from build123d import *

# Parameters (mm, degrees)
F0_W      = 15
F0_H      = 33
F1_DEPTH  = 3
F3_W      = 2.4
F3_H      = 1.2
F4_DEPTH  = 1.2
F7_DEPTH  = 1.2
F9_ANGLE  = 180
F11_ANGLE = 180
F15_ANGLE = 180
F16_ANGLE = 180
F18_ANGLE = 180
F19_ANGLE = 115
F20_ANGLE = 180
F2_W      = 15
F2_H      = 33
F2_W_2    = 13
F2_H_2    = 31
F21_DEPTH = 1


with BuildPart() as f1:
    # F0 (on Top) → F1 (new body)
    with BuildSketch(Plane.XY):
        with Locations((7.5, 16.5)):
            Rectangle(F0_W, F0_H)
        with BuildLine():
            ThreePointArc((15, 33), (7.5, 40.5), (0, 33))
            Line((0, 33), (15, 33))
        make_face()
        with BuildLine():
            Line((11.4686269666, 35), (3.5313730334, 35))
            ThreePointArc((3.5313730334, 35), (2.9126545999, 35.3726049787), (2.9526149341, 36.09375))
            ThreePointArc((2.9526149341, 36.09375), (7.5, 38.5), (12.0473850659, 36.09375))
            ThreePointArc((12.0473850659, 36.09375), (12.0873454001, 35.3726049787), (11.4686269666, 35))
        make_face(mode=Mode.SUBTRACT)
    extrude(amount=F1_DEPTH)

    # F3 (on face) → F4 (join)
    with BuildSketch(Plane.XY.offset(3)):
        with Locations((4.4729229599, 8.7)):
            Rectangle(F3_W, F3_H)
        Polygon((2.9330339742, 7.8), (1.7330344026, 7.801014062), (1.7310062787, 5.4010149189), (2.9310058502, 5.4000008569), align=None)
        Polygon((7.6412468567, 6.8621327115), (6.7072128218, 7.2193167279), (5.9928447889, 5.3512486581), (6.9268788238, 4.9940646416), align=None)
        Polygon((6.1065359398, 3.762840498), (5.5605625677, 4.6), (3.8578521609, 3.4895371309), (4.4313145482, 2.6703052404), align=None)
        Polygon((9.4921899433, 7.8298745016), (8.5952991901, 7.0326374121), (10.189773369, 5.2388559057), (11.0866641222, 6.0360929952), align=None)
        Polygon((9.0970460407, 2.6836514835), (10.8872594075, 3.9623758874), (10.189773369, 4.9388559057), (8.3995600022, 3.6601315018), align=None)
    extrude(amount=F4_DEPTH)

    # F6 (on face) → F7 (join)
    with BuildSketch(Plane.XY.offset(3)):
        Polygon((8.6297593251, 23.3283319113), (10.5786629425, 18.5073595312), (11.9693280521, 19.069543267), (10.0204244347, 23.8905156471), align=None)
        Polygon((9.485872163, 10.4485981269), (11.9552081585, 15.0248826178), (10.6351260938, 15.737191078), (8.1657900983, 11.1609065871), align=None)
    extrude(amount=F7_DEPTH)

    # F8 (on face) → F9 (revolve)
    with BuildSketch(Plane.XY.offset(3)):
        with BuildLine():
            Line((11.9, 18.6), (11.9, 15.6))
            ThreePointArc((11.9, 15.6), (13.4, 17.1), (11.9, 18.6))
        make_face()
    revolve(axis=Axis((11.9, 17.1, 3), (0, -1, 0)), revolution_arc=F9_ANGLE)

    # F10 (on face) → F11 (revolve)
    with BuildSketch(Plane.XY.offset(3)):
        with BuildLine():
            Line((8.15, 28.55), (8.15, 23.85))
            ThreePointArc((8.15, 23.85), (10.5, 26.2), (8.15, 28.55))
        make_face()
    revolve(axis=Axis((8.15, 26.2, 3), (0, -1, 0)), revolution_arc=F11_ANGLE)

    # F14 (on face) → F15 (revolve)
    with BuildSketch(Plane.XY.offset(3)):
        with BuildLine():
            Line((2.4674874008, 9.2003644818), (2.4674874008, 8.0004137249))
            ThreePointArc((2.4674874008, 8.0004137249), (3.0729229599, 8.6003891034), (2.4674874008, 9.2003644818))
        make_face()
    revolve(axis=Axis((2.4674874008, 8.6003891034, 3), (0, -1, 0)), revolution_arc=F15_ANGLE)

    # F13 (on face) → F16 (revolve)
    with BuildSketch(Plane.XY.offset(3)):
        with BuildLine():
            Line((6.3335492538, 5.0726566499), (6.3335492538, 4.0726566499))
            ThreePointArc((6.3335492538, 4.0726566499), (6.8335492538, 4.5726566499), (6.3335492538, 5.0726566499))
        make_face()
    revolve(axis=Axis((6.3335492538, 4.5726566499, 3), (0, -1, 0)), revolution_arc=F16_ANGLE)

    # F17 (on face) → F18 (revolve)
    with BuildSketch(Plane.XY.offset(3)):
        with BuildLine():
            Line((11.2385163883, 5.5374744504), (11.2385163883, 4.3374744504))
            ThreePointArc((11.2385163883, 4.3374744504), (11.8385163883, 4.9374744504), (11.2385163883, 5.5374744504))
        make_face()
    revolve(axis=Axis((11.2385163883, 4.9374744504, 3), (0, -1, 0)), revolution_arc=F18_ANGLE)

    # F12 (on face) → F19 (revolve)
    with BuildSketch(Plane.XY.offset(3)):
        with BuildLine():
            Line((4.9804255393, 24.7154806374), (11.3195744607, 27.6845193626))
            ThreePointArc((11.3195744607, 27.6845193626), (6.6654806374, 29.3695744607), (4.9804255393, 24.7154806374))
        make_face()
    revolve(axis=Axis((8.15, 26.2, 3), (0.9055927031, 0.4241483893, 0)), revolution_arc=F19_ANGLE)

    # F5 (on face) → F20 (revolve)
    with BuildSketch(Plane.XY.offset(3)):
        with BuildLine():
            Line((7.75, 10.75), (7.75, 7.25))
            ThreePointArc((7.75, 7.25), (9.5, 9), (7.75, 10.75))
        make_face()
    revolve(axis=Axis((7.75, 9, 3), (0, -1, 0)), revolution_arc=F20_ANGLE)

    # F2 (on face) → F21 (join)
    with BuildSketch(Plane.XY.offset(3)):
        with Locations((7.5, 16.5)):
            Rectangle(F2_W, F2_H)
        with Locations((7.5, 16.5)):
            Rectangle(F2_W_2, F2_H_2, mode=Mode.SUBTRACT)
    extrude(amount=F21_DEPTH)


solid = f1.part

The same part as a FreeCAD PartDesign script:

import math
import FreeCAD as App
import Part
import Sketcher
Q = App.Units.Quantity

doc = App.newDocument("Part")
body = doc.addObject("PartDesign::Body", "Body")

# Sketch on XY plane
sketch1 = body.newObject("Sketcher::SketchObject", "Sketch")
sketch1.AttachmentSupport = (doc.getObject("XY_Plane"), [""])
sketch1.MapMode = "FlatFace"
sketch1.addGeometry([
    Part.LineSegment(App.Vector(0, 33, 0), App.Vector(0, 0, 0)),  # 0
    Part.LineSegment(App.Vector(0, 0, 0), App.Vector(15, 0, 0)),  # 1
    Part.LineSegment(App.Vector(15, 0, 0), App.Vector(15, 33, 0)),  # 2
    Part.ArcOfCircle(Part.Circle(App.Vector(7.5, 33, 0), App.Vector(0, 0, 1), 7.5), math.radians(0), math.radians(180)),  # 3
    Part.ArcOfCircle(Part.Circle(App.Vector(11.5, 35.7, 0), App.Vector(0, 0, 1), 0.7), math.radians(-90), math.radians(34)),  # 4
    Part.LineSegment(App.Vector(11.5, 35, 0), App.Vector(3.5, 35, 0)),  # 5
    Part.ArcOfCircle(Part.Circle(App.Vector(3.5, 35.7, 0), App.Vector(0, 0, 1), 0.7), math.radians(146), math.radians(270)),  # 6
    Part.ArcOfCircle(Part.Circle(App.Vector(7.5, 33, 0), App.Vector(0, 0, 1), 5.5), math.radians(34), math.radians(146)),  # 7
], False)
sketch1.addConstraint([
    Sketcher.Constraint("Coincident", 0, 2, 1, 1),
    Sketcher.Constraint("Coincident", 1, 2, 2, 1),
    Sketcher.Constraint("Tangent", 2, 2, 3, 1),
    Sketcher.Constraint("Tangent", 3, 2, 0, 1),
    Sketcher.Constraint("Tangent", 4, 1, 5, 1),
    Sketcher.Constraint("Tangent", 5, 2, 6, 2),
    Sketcher.Constraint("Tangent", 6, 1, 7, 2),
    Sketcher.Constraint("Tangent", 7, 1, 4, 2),
    Sketcher.Constraint("Vertical", 0),
    Sketcher.Constraint("Horizontal", 1),
    Sketcher.Constraint("Vertical", 2),
    Sketcher.Constraint("Horizontal", 5),
    Sketcher.Constraint("Coincident", 0, 2, -1, 1),
    Sketcher.Constraint("Coincident", 7, 3, 3, 3),
    Sketcher.Constraint("Equal", 4, 6),
    Sketcher.Constraint("Radius", 3, Q("7.5 mm")),
    Sketcher.Constraint("Radius", 4, Q("0.7 mm")),
    Sketcher.Constraint("Radius", 7, Q("5.5 mm")),
    Sketcher.Constraint("DistanceY", 0, 2, 0, 1, Q("33 mm")),
    Sketcher.Constraint("DistanceY", -1, 1, 4, 1, Q("35 mm")),
])
pad1 = body.newObject("PartDesign::Pad", "Pad")
pad1.Profile = sketch1
pad1.Length = 3

# Sketch on XY plane
sketch2 = body.newObject("Sketcher::SketchObject", "Sketch001")
sketch2.AttachmentSupport = (doc.getObject("XY_Plane"), [""])
sketch2.MapMode = "FlatFace"
sketch2.AttachmentOffset = App.Placement(App.Vector(0, 0, 3), App.Rotation())
sketch2.addGeometry([
    Part.LineSegment(App.Vector(3.272923, 9.3, 0), App.Vector(3.272923, 8.1, 0)),  # 0
    Part.LineSegment(App.Vector(3.272923, 8.1, 0), App.Vector(5.672923, 8.1, 0)),  # 1
    Part.LineSegment(App.Vector(5.672923, 8.1, 0), App.Vector(5.672923, 9.3, 0)),  # 2
    Part.LineSegment(App.Vector(5.672923, 9.3, 0), App.Vector(3.272923, 9.3, 0)),  # 3
    Part.LineSegment(App.Vector(2.933034, 7.8, 0), App.Vector(1.733034, 7.801014, 0)),  # 4
    Part.LineSegment(App.Vector(1.733034, 7.801014, 0), App.Vector(1.731006, 5.401015, 0)),  # 5
    Part.LineSegment(App.Vector(1.731006, 5.401015, 0), App.Vector(2.931006, 5.400001, 0)),  # 6
    Part.LineSegment(App.Vector(2.931006, 5.400001, 0), App.Vector(2.933034, 7.8, 0)),  # 7
    Part.LineSegment(App.Vector(7.641247, 6.862133, 0), App.Vector(6.707213, 7.219317, 0)),  # 8
    Part.LineSegment(App.Vector(6.707213, 7.219317, 0), App.Vector(5.992845, 5.351249, 0)),  # 9
    Part.LineSegment(App.Vector(5.992845, 5.351249, 0), App.Vector(6.926879, 4.994065, 0)),  # 10
    Part.LineSegment(App.Vector(6.926879, 4.994065, 0), App.Vector(7.641247, 6.862133, 0)),  # 11
    Part.LineSegment(App.Vector(6.106536, 3.76284, 0), App.Vector(5.560563, 4.6, 0)),  # 12
    Part.LineSegment(App.Vector(5.560563, 4.6, 0), App.Vector(3.857852, 3.489537, 0)),  # 13
    Part.LineSegment(App.Vector(3.857852, 3.489537, 0), App.Vector(4.431315, 2.670305, 0)),  # 14
    Part.LineSegment(App.Vector(4.431315, 2.670305, 0), App.Vector(6.106536, 3.76284, 0)),  # 15
    Part.LineSegment(App.Vector(9.49219, 7.829875, 0), App.Vector(8.595299, 7.032637, 0)),  # 16
    Part.LineSegment(App.Vector(8.595299, 7.032637, 0), App.Vector(10.189773, 5.238856, 0)),  # 17
    Part.LineSegment(App.Vector(10.189773, 5.238856, 0), App.Vector(11.086664, 6.036093, 0)),  # 18
    Part.LineSegment(App.Vector(11.086664, 6.036093, 0), App.Vector(9.49219, 7.829875, 0)),  # 19
    Part.LineSegment(App.Vector(9.097046, 2.683651, 0), App.Vector(10.887259, 3.962376, 0)),  # 20
    Part.LineSegment(App.Vector(10.887259, 3.962376, 0), App.Vector(10.189773, 4.938856, 0)),  # 21
    Part.LineSegment(App.Vector(10.189773, 4.938856, 0), App.Vector(8.39956, 3.660132, 0)),  # 22
    Part.LineSegment(App.Vector(8.39956, 3.660132, 0), App.Vector(9.097046, 2.683651, 0)),  # 23
], False)
sketch2.addConstraint([
    Sketcher.Constraint("Coincident", 0, 2, 1, 1),
    Sketcher.Constraint("Coincident", 1, 2, 2, 1),
    Sketcher.Constraint("Coincident", 2, 2, 3, 1),
    Sketcher.Constraint("Coincident", 3, 2, 0, 1),
    Sketcher.Constraint("Coincident", 4, 2, 5, 1),
    Sketcher.Constraint("Coincident", 5, 2, 6, 1),
    Sketcher.Constraint("Coincident", 6, 2, 7, 1),
    Sketcher.Constraint("Coincident", 7, 2, 4, 1),
    Sketcher.Constraint("Coincident", 8, 2, 9, 1),
    Sketcher.Constraint("Coincident", 9, 2, 10, 1),
    Sketcher.Constraint("Coincident", 10, 2, 11, 1),
    Sketcher.Constraint("Coincident", 11, 2, 8, 1),
    Sketcher.Constraint("Coincident", 12, 2, 13, 1),
    Sketcher.Constraint("Coincident", 13, 2, 14, 1),
    Sketcher.Constraint("Coincident", 14, 2, 15, 1),
    Sketcher.Constraint("Coincident", 15, 2, 12, 1),
    Sketcher.Constraint("Coincident", 16, 2, 17, 1),
    Sketcher.Constraint("Coincident", 17, 2, 18, 1),
    Sketcher.Constraint("Coincident", 18, 2, 19, 1),
    Sketcher.Constraint("Coincident", 19, 2, 16, 1),
    Sketcher.Constraint("Coincident", 20, 2, 21, 1),
    Sketcher.Constraint("Coincident", 21, 2, 22, 1),
    Sketcher.Constraint("Coincident", 22, 2, 23, 1),
    Sketcher.Constraint("Coincident", 23, 2, 20, 1),
    Sketcher.Constraint("Vertical", 0),
    Sketcher.Constraint("Horizontal", 1),
    Sketcher.Constraint("Vertical", 2),
    Sketcher.Constraint("Horizontal", 3),
    Sketcher.Constraint("Perpendicular", 4, 5),
    Sketcher.Constraint("Perpendicular", 5, 6),
    Sketcher.Constraint("Perpendicular", 6, 7),
    Sketcher.Constraint("Perpendicular", 8, 9),
    Sketcher.Constraint("Perpendicular", 9, 10),
    Sketcher.Constraint("Perpendicular", 10, 11),
    Sketcher.Constraint("Perpendicular", 12, 13),
    Sketcher.Constraint("Parallel", 13, 15),
    Sketcher.Constraint("Perpendicular", 16, 17),
    Sketcher.Constraint("Perpendicular", 17, 18),
    Sketcher.Constraint("Perpendicular", 18, 19),
    Sketcher.Constraint("Perpendicular", 20, 21),
    Sketcher.Constraint("Perpendicular", 21, 22),
    Sketcher.Constraint("Perpendicular", 22, 23),
    Sketcher.Constraint("Vertical", 17, 2, 21, 2),
    Sketcher.Constraint("Equal", 10, 14),
    Sketcher.Constraint("Equal", 11, 15),
    Sketcher.Constraint("Equal", 6, 16),
    Sketcher.Constraint("Equal", 7, 17),
    Sketcher.Constraint("Equal", 18, 21),
    Sketcher.Constraint("Distance", 8, Q("1 mm")),
    Sketcher.Constraint("Distance", 9, Q("2 mm")),
    Sketcher.Constraint("DistanceX", 1, 1, 1, 2, Q("2.4 mm")),
    Sketcher.Constraint("DistanceY", 0, 2, 0, 1, Q("1.2 mm")),
    Sketcher.Constraint("Distance", 4, Q("1.2 mm")),
    Sketcher.Constraint("Distance", 5, Q("2.4 mm")),
    Sketcher.Constraint("Distance", 20, Q("2.2 mm")),
    Sketcher.Constraint("DistanceY", -1, 1, 0, 2, Q("8.1 mm")),
    Sketcher.Constraint("DistanceY", -1, 1, 6, 2, Q("5.400001 mm")),
    Sketcher.Constraint("DistanceY", -1, 1, 12, 2, Q("4.6 mm")),
    Sketcher.Constraint("DistanceY", 21, 2, 17, 2, Q("0.3 mm")),
    Sketcher.Constraint("DistanceX", -1, 1, 16, 2, Q("8.595299 mm")),
    Sketcher.Constraint("DistanceY", 20, 2, 19, 2, Q("3.867499 mm")),
    Sketcher.Constraint("DistanceX", 22, 2, 20, 2, Q("2.487699 mm")),
    Sketcher.Constraint("Distance", 12, Q("0.999461 mm")),
    Sketcher.Constraint("DistanceY", -1, 1, 9, 2, Q("5.351249 mm")),
    Sketcher.Constraint("DistanceX", -1, 1, 10, 2, Q("6.926879 mm")),
    Sketcher.Constraint("DistanceY", -1, 1, 15, 2, Q("3.76284 mm")),
    Sketcher.Constraint("DistanceY", -1, 1, 22, 2, Q("3.660132 mm")),
    Sketcher.Constraint("DistanceX", 4, 2, 0, 2, Q("1.539889 mm")),
    Sketcher.Constraint("DistanceX", 5, 2, 4, 2, Q("0.002028 mm")),
    Sketcher.Constraint("DistanceX", 1, 2, 8, 2, Q("1.03429 mm")),
    Sketcher.Constraint("DistanceX", 9, 2, 8, 2, Q("0.714368 mm")),
    Sketcher.Constraint("DistanceX", 12, 2, 8, 2, Q("1.14665 mm")),
])
pad2 = body.newObject("PartDesign::Pad", "Pad001")
pad2.Profile = sketch2
pad2.Length = 1.2

# Sketch on XY plane
sketch3 = body.newObject("Sketcher::SketchObject", "Sketch002")
sketch3.AttachmentSupport = (doc.getObject("XY_Plane"), [""])
sketch3.MapMode = "FlatFace"
sketch3.AttachmentOffset = App.Placement(App.Vector(0, 0, 3), App.Rotation())
sketch3.addGeometry([
    Part.LineSegment(App.Vector(8.6, 23.3, 0), App.Vector(10.6, 18.5, 0)),  # 0
    Part.LineSegment(App.Vector(10.6, 18.5, 0), App.Vector(12, 19.1, 0)),  # 1
    Part.LineSegment(App.Vector(12, 19.1, 0), App.Vector(10, 23.9, 0)),  # 2
    Part.LineSegment(App.Vector(10, 23.9, 0), App.Vector(8.6, 23.3, 0)),  # 3
    Part.LineSegment(App.Vector(9.5, 10.4, 0), App.Vector(12, 15, 0)),  # 4
    Part.LineSegment(App.Vector(12, 15, 0), App.Vector(10.6, 15.7, 0)),  # 5
    Part.LineSegment(App.Vector(10.6, 15.7, 0), App.Vector(8.2, 11.2, 0)),  # 6
    Part.LineSegment(App.Vector(8.2, 11.2, 0), App.Vector(9.5, 10.4, 0)),  # 7
], False)
sketch3.addConstraint([
    Sketcher.Constraint("Coincident", 0, 2, 1, 1),
    Sketcher.Constraint("Coincident", 1, 2, 2, 1),
    Sketcher.Constraint("Coincident", 2, 2, 3, 1),
    Sketcher.Constraint("Coincident", 3, 2, 0, 1),
    Sketcher.Constraint("Coincident", 4, 2, 5, 1),
    Sketcher.Constraint("Coincident", 5, 2, 6, 1),
    Sketcher.Constraint("Coincident", 6, 2, 7, 1),
    Sketcher.Constraint("Coincident", 7, 2, 4, 1),
    Sketcher.Constraint("Perpendicular", 0, 1),
    Sketcher.Constraint("Perpendicular", 1, 2),
    Sketcher.Constraint("Perpendicular", 2, 3),
    Sketcher.Constraint("Perpendicular", 4, 5),
    Sketcher.Constraint("Perpendicular", 5, 6),
    Sketcher.Constraint("Perpendicular", 6, 7),
    Sketcher.Constraint("Equal", 2, 4),
    Sketcher.Constraint("Equal", 3, 5),
    Sketcher.Constraint("Distance", 0, Q("5.2 mm")),
    Sketcher.Constraint("Distance", 1, Q("1.5 mm")),
    Sketcher.Constraint("DistanceY", -1, 1, 7, 2, Q("10.448598 mm")),
    Sketcher.Constraint("DistanceX", 5, 2, 1, 2, Q("1.334202 mm")),
    Sketcher.Constraint("DistanceX", 2, 2, 5, 2, Q("0.614702 mm")),
    Sketcher.Constraint("DistanceY", -1, 1, 0, 2, Q("18.50736 mm")),
    Sketcher.Constraint("DistanceX", -1, 1, 1, 2, Q("11.969328 mm")),
    Sketcher.Constraint("DistanceX", -1, 1, 4, 2, Q("11.955208 mm")),
])
pad3 = body.newObject("PartDesign::Pad", "Pad002")
pad3.Profile = sketch3
pad3.Length = 1.2

# Sketch on XY plane
sketch4 = body.newObject("Sketcher::SketchObject", "Sketch003")
sketch4.AttachmentSupport = (doc.getObject("XY_Plane"), [""])
sketch4.MapMode = "FlatFace"
sketch4.AttachmentOffset = App.Placement(App.Vector(0, 0, 3), App.Rotation())
sketch4.addGeometry([
    Part.LineSegment(App.Vector(11.9, 18.6, 0), App.Vector(11.9, 15.6, 0)),
    Part.ArcOfCircle(Part.Circle(App.Vector(11.9, 17.1, 0), App.Vector(0, 0, 1), 1.5), math.radians(-90), math.radians(90)),
], False)
sketch4.addGeometry(Part.LineSegment(App.Vector(11.9, 18.6, 0), App.Vector(11.9, 15.6, 0)), True)  # axis
sketch4.addConstraint([
    Sketcher.Constraint("Coincident", 0, 1, 1, 2),
    Sketcher.Constraint("Coincident", 1, 1, 0, 2),
    Sketcher.Constraint("Vertical", 0),
    Sketcher.Constraint("Vertical", 2),
    Sketcher.Constraint("Coincident", 2, 1, 0, 1),
    Sketcher.Constraint("Vertical", 1, 3, 0, 1),
    Sketcher.Constraint("Equal", 0, 2),
    Sketcher.Constraint("Radius", 1, Q("1.5 mm")),
    Sketcher.Constraint("DistanceX", -1, 1, 1, 3, Q("11.9 mm")),
    Sketcher.Constraint("DistanceY", -1, 1, 1, 3, Q("17.1 mm")),
])
revolution = body.newObject("PartDesign::Revolution", "Revolution")
revolution.Profile = sketch4
revolution.ReferenceAxis = (sketch4, ["Axis0"])
revolution.Angle = 180

# Sketch on XY plane
sketch5 = body.newObject("Sketcher::SketchObject", "Sketch004")
sketch5.AttachmentSupport = (doc.getObject("XY_Plane"), [""])
sketch5.MapMode = "FlatFace"
sketch5.AttachmentOffset = App.Placement(App.Vector(0, 0, 3), App.Rotation())
sketch5.addGeometry([
    Part.LineSegment(App.Vector(8.2, 28.6, 0), App.Vector(8.2, 23.9, 0)),
    Part.ArcOfCircle(Part.Circle(App.Vector(8.2, 26.2, 0), App.Vector(0, 0, 1), 2.4), math.radians(-90), math.radians(90)),
], False)
sketch5.addGeometry(Part.LineSegment(App.Vector(8.2, 28.6, 0), App.Vector(8.2, 23.9, 0)), True)  # axis
sketch5.addConstraint([
    Sketcher.Constraint("Coincident", 0, 1, 1, 2),
    Sketcher.Constraint("Coincident", 1, 1, 0, 2),
    Sketcher.Constraint("Vertical", 0),
    Sketcher.Constraint("Vertical", 2),
    Sketcher.Constraint("Coincident", 2, 1, 0, 1),
    Sketcher.Constraint("Vertical", 1, 3, 0, 1),
    Sketcher.Constraint("Equal", 0, 2),
    Sketcher.Constraint("Radius", 1, Q("2.35 mm")),
    Sketcher.Constraint("DistanceY", -1, 1, 1, 3, Q("26.2 mm")),
    Sketcher.Constraint("DistanceX", -1, 1, 1, 3, Q("8.15 mm")),
])
revolution2 = body.newObject("PartDesign::Revolution", "Revolution001")
revolution2.Profile = sketch5
revolution2.ReferenceAxis = (sketch5, ["Axis0"])
revolution2.Angle = 180

# Sketch on XY plane
sketch6 = body.newObject("Sketcher::SketchObject", "Sketch005")
sketch6.AttachmentSupport = (doc.getObject("XY_Plane"), [""])
sketch6.MapMode = "FlatFace"
sketch6.AttachmentOffset = App.Placement(App.Vector(0, 0, 3), App.Rotation())
sketch6.addGeometry([
    Part.LineSegment(App.Vector(2.5, 9.2, 0), App.Vector(2.5, 8, 0)),
    Part.ArcOfCircle(Part.Circle(App.Vector(2.5, 8.6, 0), App.Vector(0, 0, 1), 0.6), math.radians(-91), math.radians(91)),
], False)
sketch6.addGeometry(Part.LineSegment(App.Vector(2.5, 9.2, 0), App.Vector(2.5, 8, 0)), True)  # axis
sketch6.addConstraint([
    Sketcher.Constraint("Coincident", 0, 1, 1, 2),
    Sketcher.Constraint("Coincident", 1, 1, 0, 2),
    Sketcher.Constraint("Vertical", 0),
    Sketcher.Constraint("Vertical", 2),
    Sketcher.Constraint("Coincident", 2, 1, 0, 1),
    Sketcher.Constraint("Equal", 0, 2),
    Sketcher.Constraint("Radius", 1, Q("0.6 mm")),
    Sketcher.Constraint("DistanceY", 0, 2, 0, 1, Q("1.199951 mm")),
    Sketcher.Constraint("DistanceY", -1, 1, 1, 3, Q("8.600389 mm")),
    Sketcher.Constraint("DistanceX", -1, 1, 1, 3, Q("2.472923 mm")),
])
revolution3 = body.newObject("PartDesign::Revolution", "Revolution002")
revolution3.Profile = sketch6
revolution3.ReferenceAxis = (sketch6, ["Axis0"])
revolution3.Angle = 180

# Sketch on XY plane
sketch7 = body.newObject("Sketcher::SketchObject", "Sketch006")
sketch7.AttachmentSupport = (doc.getObject("XY_Plane"), [""])
sketch7.MapMode = "FlatFace"
sketch7.AttachmentOffset = App.Placement(App.Vector(0, 0, 3), App.Rotation())
sketch7.addGeometry([
    Part.LineSegment(App.Vector(6.3, 5.1, 0), App.Vector(6.3, 4.1, 0)),
    Part.ArcOfCircle(Part.Circle(App.Vector(6.3, 4.6, 0), App.Vector(0, 0, 1), 0.5), math.radians(-90), math.radians(90)),
], False)
sketch7.addGeometry(Part.LineSegment(App.Vector(6.3, 5.1, 0), App.Vector(6.3, 4.1, 0)), True)  # axis
sketch7.addConstraint([
    Sketcher.Constraint("Coincident", 0, 1, 1, 2),
    Sketcher.Constraint("Coincident", 1, 1, 0, 2),
    Sketcher.Constraint("Vertical", 0),
    Sketcher.Constraint("Vertical", 2),
    Sketcher.Constraint("Coincident", 2, 1, 0, 1),
    Sketcher.Constraint("Vertical", 1, 3, 0, 1),
    Sketcher.Constraint("Equal", 0, 2),
    Sketcher.Constraint("Radius", 1, Q("0.5 mm")),
    Sketcher.Constraint("DistanceX", -1, 1, 1, 3, Q("6.333549 mm")),
    Sketcher.Constraint("DistanceY", -1, 1, 1, 3, Q("4.572657 mm")),
])
revolution4 = body.newObject("PartDesign::Revolution", "Revolution003")
revolution4.Profile = sketch7
revolution4.ReferenceAxis = (sketch7, ["Axis0"])
revolution4.Angle = 180

# Sketch on XY plane
sketch8 = body.newObject("Sketcher::SketchObject", "Sketch007")
sketch8.AttachmentSupport = (doc.getObject("XY_Plane"), [""])
sketch8.MapMode = "FlatFace"
sketch8.AttachmentOffset = App.Placement(App.Vector(0, 0, 3), App.Rotation())
sketch8.addGeometry([
    Part.LineSegment(App.Vector(11.2, 5.5, 0), App.Vector(11.2, 4.3, 0)),
    Part.ArcOfCircle(Part.Circle(App.Vector(11.2, 4.9, 0), App.Vector(0, 0, 1), 0.6), math.radians(-90), math.radians(90)),
], False)
sketch8.addGeometry(Part.LineSegment(App.Vector(11.2, 5.5, 0), App.Vector(11.2, 4.3, 0)), True)  # axis
sketch8.addConstraint([
    Sketcher.Constraint("Coincident", 0, 1, 1, 2),
    Sketcher.Constraint("Coincident", 1, 1, 0, 2),
    Sketcher.Constraint("Vertical", 0),
    Sketcher.Constraint("Vertical", 2),
    Sketcher.Constraint("Coincident", 2, 1, 0, 1),
    Sketcher.Constraint("Vertical", 1, 3, 0, 1),
    Sketcher.Constraint("Equal", 0, 2),
    Sketcher.Constraint("Radius", 1, Q("0.6 mm")),
    Sketcher.Constraint("DistanceX", -1, 1, 1, 3, Q("11.238516 mm")),
    Sketcher.Constraint("DistanceY", -1, 1, 1, 3, Q("4.937474 mm")),
])
revolution5 = body.newObject("PartDesign::Revolution", "Revolution004")
revolution5.Profile = sketch8
revolution5.ReferenceAxis = (sketch8, ["Axis0"])
revolution5.Angle = 180

# Sketch on XY plane
sketch9 = body.newObject("Sketcher::SketchObject", "Sketch008")
sketch9.AttachmentSupport = (doc.getObject("XY_Plane"), [""])
sketch9.MapMode = "FlatFace"
sketch9.AttachmentOffset = App.Placement(App.Vector(0, 0, 3), App.Rotation())
sketch9.addGeometry([
    Part.LineSegment(App.Vector(5, 24.7, 0), App.Vector(11.3, 27.7, 0)),
    Part.ArcOfCircle(Part.Circle(App.Vector(8.2, 26.2, 0), App.Vector(0, 0, 1), 3.5), math.radians(25), math.radians(205)),
], False)
sketch9.addGeometry(Part.LineSegment(App.Vector(5, 24.7, 0), App.Vector(11.3, 27.7, 0)), True)  # axis
sketch9.addConstraint([
    Sketcher.Constraint("Coincident", 0, 1, 1, 2),
    Sketcher.Constraint("Coincident", 1, 1, 0, 2),
    Sketcher.Constraint("Coincident", 2, 1, 0, 1),
    Sketcher.Constraint("Coincident", 2, 2, 1, 1),
    Sketcher.Constraint("Radius", 1, Q("3.5 mm")),
    Sketcher.Constraint("DistanceY", -1, 1, 1, 3, Q("26.2 mm")),
    Sketcher.Constraint("DistanceX", -1, 1, 1, 3, Q("8.15 mm")),
    Sketcher.Constraint("DistanceY", -1, 1, 0, 1, Q("24.715481 mm")),
    Sketcher.Constraint("DistanceY", -1, 1, 1, 1, Q("27.684519 mm")),
])
revolution6 = body.newObject("PartDesign::Revolution", "Revolution005")
revolution6.Profile = sketch9
revolution6.ReferenceAxis = (sketch9, ["Axis0"])
revolution6.Angle = 115

# Sketch on XY plane
sketch10 = body.newObject("Sketcher::SketchObject", "Sketch009")
sketch10.AttachmentSupport = (doc.getObject("XY_Plane"), [""])
sketch10.MapMode = "FlatFace"
sketch10.AttachmentOffset = App.Placement(App.Vector(0, 0, 3), App.Rotation())
sketch10.addGeometry([
    Part.LineSegment(App.Vector(7.8, 10.8, 0), App.Vector(7.8, 7.2, 0)),
    Part.ArcOfCircle(Part.Circle(App.Vector(7.8, 9, 0), App.Vector(0, 0, 1), 1.8), math.radians(-90), math.radians(90)),
], False)
sketch10.addGeometry(Part.LineSegment(App.Vector(7.8, 10.8, 0), App.Vector(7.8, 7.2, 0)), True)  # axis
sketch10.addConstraint([
    Sketcher.Constraint("Coincident", 0, 1, 1, 2),
    Sketcher.Constraint("Coincident", 1, 1, 0, 2),
    Sketcher.Constraint("Vertical", 0),
    Sketcher.Constraint("Vertical", 2),
    Sketcher.Constraint("Coincident", 2, 1, 0, 1),
    Sketcher.Constraint("Vertical", 1, 3, 0, 1),
    Sketcher.Constraint("Equal", 0, 2),
    Sketcher.Constraint("Radius", 1, Q("1.75 mm")),
    Sketcher.Constraint("DistanceY", -1, 1, 1, 3, Q("9 mm")),
    Sketcher.Constraint("DistanceX", -1, 1, 1, 3, Q("7.75 mm")),
])
revolution7 = body.newObject("PartDesign::Revolution", "Revolution006")
revolution7.Profile = sketch10
revolution7.ReferenceAxis = (sketch10, ["Axis0"])
revolution7.Angle = 180

# Sketch on XY plane
sketch11 = body.newObject("Sketcher::SketchObject", "Sketch010")
sketch11.AttachmentSupport = (doc.getObject("XY_Plane"), [""])
sketch11.MapMode = "FlatFace"
sketch11.AttachmentOffset = App.Placement(App.Vector(0, 0, 3), App.Rotation())
sketch11.addGeometry([
    Part.LineSegment(App.Vector(0, 33, 0), App.Vector(0, 0, 0)),  # 0
    Part.LineSegment(App.Vector(0, 0, 0), App.Vector(15, 0, 0)),  # 1
    Part.LineSegment(App.Vector(15, 0, 0), App.Vector(15, 33, 0)),  # 2
    Part.LineSegment(App.Vector(15, 33, 0), App.Vector(0, 33, 0)),  # 3
    Part.LineSegment(App.Vector(14, 1, 0), App.Vector(1, 1, 0)),  # 4
    Part.LineSegment(App.Vector(1, 1, 0), App.Vector(1, 32, 0)),  # 5
    Part.LineSegment(App.Vector(1, 32, 0), App.Vector(14, 32, 0)),  # 6
    Part.LineSegment(App.Vector(14, 32, 0), App.Vector(14, 1, 0)),  # 7
], False)
sketch11.addConstraint([
    Sketcher.Constraint("Coincident", 0, 2, 1, 1),
    Sketcher.Constraint("Coincident", 1, 2, 2, 1),
    Sketcher.Constraint("Coincident", 2, 2, 3, 1),
    Sketcher.Constraint("Coincident", 3, 2, 0, 1),
    Sketcher.Constraint("Coincident", 4, 2, 5, 1),
    Sketcher.Constraint("Coincident", 5, 2, 6, 1),
    Sketcher.Constraint("Coincident", 6, 2, 7, 1),
    Sketcher.Constraint("Coincident", 7, 2, 4, 1),
    Sketcher.Constraint("Vertical", 0),
    Sketcher.Constraint("Horizontal", 1),
    Sketcher.Constraint("Vertical", 2),
    Sketcher.Constraint("Horizontal", 3),
    Sketcher.Constraint("Horizontal", 4),
    Sketcher.Constraint("Vertical", 5),
    Sketcher.Constraint("Horizontal", 6),
    Sketcher.Constraint("Vertical", 7),
    Sketcher.Constraint("Coincident", 0, 2, -1, 1),
    Sketcher.Constraint("DistanceX", 1, 1, 1, 2, Q("15 mm")),
    Sketcher.Constraint("DistanceX", 4, 2, 4, 1, Q("13 mm")),
    Sketcher.Constraint("DistanceY", 0, 2, 0, 1, Q("33 mm")),
    Sketcher.Constraint("DistanceY", 5, 1, 5, 2, Q("31 mm")),
    Sketcher.Constraint("DistanceX", -1, 1, 4, 2, Q("1 mm")),
    Sketcher.Constraint("DistanceY", -1, 1, 4, 2, Q("1 mm")),
])
pad4 = body.newObject("PartDesign::Pad", "Pad003")
pad4.Profile = sketch11
pad4.Length = 1

doc.recompute()
